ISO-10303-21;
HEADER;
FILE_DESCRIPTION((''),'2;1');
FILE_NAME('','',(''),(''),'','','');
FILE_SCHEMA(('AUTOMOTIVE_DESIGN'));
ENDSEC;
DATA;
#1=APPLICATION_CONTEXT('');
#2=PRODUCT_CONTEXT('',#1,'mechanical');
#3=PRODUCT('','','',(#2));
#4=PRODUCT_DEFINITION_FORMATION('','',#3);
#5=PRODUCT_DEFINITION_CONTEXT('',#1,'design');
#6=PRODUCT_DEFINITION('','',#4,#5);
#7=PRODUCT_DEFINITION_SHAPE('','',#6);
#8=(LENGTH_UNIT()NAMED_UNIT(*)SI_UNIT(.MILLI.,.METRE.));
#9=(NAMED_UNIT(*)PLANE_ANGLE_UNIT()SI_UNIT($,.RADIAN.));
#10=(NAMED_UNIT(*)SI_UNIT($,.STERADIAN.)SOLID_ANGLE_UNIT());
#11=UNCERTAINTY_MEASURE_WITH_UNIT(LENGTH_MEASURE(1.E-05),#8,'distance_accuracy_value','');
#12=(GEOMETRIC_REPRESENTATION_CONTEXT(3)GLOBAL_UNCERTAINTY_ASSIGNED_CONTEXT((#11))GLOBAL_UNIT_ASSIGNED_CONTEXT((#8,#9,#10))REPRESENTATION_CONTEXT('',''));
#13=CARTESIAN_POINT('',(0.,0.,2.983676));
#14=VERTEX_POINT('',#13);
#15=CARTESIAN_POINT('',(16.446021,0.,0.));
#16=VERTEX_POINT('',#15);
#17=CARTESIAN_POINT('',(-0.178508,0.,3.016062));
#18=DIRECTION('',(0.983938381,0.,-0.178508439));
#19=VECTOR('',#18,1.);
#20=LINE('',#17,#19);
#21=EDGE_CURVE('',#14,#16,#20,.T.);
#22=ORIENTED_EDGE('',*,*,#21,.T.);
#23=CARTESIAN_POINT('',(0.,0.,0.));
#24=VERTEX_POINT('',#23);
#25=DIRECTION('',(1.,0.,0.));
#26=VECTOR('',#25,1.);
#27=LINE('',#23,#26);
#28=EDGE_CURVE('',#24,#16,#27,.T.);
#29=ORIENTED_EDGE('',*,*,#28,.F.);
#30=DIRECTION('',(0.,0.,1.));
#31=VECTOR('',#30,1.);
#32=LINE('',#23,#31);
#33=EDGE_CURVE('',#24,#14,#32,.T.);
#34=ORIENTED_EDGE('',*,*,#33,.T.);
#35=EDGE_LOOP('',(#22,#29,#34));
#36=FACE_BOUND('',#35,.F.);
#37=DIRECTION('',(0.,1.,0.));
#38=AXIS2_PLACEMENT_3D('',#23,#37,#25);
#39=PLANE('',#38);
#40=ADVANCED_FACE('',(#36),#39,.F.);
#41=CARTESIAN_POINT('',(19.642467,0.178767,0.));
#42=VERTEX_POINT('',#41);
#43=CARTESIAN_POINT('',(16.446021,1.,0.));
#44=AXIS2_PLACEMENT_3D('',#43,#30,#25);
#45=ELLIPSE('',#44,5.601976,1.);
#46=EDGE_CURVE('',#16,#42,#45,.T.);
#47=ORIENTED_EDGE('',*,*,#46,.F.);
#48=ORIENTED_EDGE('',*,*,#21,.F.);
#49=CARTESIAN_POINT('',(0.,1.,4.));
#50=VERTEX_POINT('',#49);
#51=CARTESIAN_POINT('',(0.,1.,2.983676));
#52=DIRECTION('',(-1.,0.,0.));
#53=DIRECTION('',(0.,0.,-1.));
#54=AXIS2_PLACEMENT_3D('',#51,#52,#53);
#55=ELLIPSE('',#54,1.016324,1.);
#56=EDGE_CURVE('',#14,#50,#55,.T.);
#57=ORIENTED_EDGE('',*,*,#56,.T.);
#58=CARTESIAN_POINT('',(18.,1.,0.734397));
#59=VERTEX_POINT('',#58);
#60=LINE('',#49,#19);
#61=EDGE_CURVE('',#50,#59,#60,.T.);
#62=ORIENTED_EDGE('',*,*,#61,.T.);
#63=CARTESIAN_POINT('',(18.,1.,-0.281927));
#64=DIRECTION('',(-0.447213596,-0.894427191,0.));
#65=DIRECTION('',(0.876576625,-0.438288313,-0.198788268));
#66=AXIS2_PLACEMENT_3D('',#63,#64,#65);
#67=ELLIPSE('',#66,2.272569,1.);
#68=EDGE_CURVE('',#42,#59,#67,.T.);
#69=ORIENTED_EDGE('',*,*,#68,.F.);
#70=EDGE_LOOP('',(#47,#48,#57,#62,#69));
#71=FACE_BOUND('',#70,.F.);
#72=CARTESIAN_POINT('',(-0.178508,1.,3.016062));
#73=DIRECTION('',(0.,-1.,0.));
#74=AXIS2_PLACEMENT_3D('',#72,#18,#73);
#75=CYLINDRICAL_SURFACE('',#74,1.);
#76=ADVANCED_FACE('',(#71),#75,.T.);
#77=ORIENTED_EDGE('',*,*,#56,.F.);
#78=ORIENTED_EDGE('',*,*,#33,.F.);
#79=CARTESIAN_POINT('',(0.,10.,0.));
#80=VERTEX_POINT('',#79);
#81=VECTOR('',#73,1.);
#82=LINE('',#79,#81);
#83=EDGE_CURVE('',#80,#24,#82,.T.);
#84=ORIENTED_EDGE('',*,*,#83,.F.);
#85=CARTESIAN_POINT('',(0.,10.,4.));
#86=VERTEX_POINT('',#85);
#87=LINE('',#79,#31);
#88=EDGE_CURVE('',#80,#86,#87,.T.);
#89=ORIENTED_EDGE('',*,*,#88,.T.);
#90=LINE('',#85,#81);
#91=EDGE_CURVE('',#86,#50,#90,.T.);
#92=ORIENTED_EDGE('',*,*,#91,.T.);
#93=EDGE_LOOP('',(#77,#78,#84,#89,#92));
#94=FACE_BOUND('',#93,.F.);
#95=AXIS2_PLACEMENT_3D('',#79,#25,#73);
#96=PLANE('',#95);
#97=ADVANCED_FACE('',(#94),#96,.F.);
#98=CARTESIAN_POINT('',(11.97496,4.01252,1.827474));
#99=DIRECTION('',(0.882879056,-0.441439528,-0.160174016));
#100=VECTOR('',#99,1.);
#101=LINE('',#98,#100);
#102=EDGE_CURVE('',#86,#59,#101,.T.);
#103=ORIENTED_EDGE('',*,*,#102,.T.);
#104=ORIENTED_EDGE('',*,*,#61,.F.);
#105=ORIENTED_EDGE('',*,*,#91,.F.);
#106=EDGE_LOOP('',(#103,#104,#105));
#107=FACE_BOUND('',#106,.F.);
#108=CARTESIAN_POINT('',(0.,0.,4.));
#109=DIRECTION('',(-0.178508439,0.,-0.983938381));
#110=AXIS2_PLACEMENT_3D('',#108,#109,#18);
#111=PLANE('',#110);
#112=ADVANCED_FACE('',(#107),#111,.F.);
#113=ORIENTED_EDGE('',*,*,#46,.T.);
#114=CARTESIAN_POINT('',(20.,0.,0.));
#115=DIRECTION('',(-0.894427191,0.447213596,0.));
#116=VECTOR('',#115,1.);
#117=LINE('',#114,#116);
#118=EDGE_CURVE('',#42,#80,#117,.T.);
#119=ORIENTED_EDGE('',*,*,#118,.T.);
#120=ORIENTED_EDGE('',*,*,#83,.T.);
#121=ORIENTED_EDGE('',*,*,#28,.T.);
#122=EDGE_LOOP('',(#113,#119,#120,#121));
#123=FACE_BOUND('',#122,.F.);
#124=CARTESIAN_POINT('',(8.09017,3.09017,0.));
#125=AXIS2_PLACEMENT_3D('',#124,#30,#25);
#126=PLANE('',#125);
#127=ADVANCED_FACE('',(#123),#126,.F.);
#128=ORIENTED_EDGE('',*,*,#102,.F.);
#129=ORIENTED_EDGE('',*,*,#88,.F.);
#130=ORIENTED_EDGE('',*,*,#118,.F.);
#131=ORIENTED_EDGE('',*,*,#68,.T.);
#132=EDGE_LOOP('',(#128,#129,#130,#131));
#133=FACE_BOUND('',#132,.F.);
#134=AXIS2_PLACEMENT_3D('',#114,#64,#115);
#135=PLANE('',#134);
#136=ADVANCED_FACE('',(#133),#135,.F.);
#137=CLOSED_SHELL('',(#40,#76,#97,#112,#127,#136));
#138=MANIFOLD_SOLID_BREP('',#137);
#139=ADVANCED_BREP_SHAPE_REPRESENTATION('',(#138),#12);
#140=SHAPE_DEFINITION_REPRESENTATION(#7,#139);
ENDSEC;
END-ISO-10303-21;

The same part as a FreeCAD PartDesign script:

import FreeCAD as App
import Part
import Sketcher
from FreeCAD import Vector
Q = App.Units.Quantity


def edges_at(feature, points):
    """Names of the edges that pass closest to the given points."""
    edges = feature.Shape.Edges
    near = lambda p: min(range(len(edges)), key=lambda i: edges[i].distToShape(Part.Vertex(*p))[0])
    return sorted({f"Edge{near(p) + 1}" for p in points})

doc = App.newDocument("Part")
body = doc.addObject("PartDesign::Body", "Body")

# Sketch on XY plane
sketch1 = body.newObject("Sketcher::SketchObject", "Sketch")
sketch1.AttachmentSupport = (doc.getObject("XY_Plane"), [""])
sketch1.MapMode = "FlatFace"
sketch1.addGeometry(Part.LineSegment(Vector(0, 10, 0), Vector(0, 0, 0)), False)
sketch1.addGeometry(Part.LineSegment(Vector(0, 0, 0), Vector(20, 0, 0)), False)
sketch1.addGeometry(Part.LineSegment(Vector(20, 0, 0), Vector(0, 10, 0)), False)
sketch1.addConstraint(Sketcher.Constraint("Coincident", 0, 2, 1, 1))
sketch1.addConstraint(Sketcher.Constraint("Coincident", 1, 2, 2, 1))
sketch1.addConstraint(Sketcher.Constraint("Coincident", 2, 2, 0, 1))
sketch1.addConstraint(Sketcher.Constraint("Vertical", 0))
sketch1.addConstraint(Sketcher.Constraint("Horizontal", 1))
sketch1.addConstraint(Sketcher.Constraint("Coincident", 0, 2, -1, 1))
sketch1.addConstraint(Sketcher.Constraint("DistanceX", 1, 1, 1, 2, Q("20 mm")))
sketch1.addConstraint(Sketcher.Constraint("DistanceY", 0, 2, 0, 1, Q("10 mm")))
pad1 = body.newObject("PartDesign::Pad", "Pad")
pad1.Profile = sketch1
pad1.Length = 4

# Sketch on XZ plane
sketch2 = body.newObject("Sketcher::SketchObject", "Sketch001")
sketch2.AttachmentSupport = (doc.getObject("XZ_Plane"), [""])
sketch2.MapMode = "FlatFace"
sketch2.addGeometry(Part.LineSegment(Vector(0, 4, 0), Vector(22.047997, 0, 0)), False)
sketch2.addGeometry(Part.LineSegment(Vector(22.047997, 0, 0), Vector(22.047997, 4, 0)), False)
sketch2.addGeometry(Part.LineSegment(Vector(22.047997, 4, 0), Vector(0, 4, 0)), False)
sketch2.addConstraint(Sketcher.Constraint("Coincident", 0, 2, 1, 1))
sketch2.addConstraint(Sketcher.Constraint("Coincident", 1, 2, 2, 1))
sketch2.addConstraint(Sketcher.Constraint("Coincident", 2, 2, 0, 1))
sketch2.addConstraint(Sketcher.Constraint("Vertical", 1))
sketch2.addConstraint(Sketcher.Constraint("Horizontal", 2))
sketch2.addConstraint(Sketcher.Constraint("PointOnObject", 0, 2, -1))
sketch2.addConstraint(Sketcher.Constraint("PointOnObject", 2, 2, -2))
sketch2.addConstraint(Sketcher.Constraint("DistanceY", 1, 1, 1, 2, Q("4 mm")))
sketch2.addConstraint(Sketcher.Constraint("DistanceX", 2, 2, 2, 1, Q("22.047997 mm")))
pocket1 = body.newObject("PartDesign::Pocket", "Pocket")
pocket1.Profile = sketch2
pocket1.Length = 10
doc.recompute()

fillet = body.newObject("PartDesign::Fillet", "Fillet")
fillet.Base = (pocket1, edges_at(pocket1, [(10, 0, 2.186)]))
fillet.Radius = 1

doc.recompute()
